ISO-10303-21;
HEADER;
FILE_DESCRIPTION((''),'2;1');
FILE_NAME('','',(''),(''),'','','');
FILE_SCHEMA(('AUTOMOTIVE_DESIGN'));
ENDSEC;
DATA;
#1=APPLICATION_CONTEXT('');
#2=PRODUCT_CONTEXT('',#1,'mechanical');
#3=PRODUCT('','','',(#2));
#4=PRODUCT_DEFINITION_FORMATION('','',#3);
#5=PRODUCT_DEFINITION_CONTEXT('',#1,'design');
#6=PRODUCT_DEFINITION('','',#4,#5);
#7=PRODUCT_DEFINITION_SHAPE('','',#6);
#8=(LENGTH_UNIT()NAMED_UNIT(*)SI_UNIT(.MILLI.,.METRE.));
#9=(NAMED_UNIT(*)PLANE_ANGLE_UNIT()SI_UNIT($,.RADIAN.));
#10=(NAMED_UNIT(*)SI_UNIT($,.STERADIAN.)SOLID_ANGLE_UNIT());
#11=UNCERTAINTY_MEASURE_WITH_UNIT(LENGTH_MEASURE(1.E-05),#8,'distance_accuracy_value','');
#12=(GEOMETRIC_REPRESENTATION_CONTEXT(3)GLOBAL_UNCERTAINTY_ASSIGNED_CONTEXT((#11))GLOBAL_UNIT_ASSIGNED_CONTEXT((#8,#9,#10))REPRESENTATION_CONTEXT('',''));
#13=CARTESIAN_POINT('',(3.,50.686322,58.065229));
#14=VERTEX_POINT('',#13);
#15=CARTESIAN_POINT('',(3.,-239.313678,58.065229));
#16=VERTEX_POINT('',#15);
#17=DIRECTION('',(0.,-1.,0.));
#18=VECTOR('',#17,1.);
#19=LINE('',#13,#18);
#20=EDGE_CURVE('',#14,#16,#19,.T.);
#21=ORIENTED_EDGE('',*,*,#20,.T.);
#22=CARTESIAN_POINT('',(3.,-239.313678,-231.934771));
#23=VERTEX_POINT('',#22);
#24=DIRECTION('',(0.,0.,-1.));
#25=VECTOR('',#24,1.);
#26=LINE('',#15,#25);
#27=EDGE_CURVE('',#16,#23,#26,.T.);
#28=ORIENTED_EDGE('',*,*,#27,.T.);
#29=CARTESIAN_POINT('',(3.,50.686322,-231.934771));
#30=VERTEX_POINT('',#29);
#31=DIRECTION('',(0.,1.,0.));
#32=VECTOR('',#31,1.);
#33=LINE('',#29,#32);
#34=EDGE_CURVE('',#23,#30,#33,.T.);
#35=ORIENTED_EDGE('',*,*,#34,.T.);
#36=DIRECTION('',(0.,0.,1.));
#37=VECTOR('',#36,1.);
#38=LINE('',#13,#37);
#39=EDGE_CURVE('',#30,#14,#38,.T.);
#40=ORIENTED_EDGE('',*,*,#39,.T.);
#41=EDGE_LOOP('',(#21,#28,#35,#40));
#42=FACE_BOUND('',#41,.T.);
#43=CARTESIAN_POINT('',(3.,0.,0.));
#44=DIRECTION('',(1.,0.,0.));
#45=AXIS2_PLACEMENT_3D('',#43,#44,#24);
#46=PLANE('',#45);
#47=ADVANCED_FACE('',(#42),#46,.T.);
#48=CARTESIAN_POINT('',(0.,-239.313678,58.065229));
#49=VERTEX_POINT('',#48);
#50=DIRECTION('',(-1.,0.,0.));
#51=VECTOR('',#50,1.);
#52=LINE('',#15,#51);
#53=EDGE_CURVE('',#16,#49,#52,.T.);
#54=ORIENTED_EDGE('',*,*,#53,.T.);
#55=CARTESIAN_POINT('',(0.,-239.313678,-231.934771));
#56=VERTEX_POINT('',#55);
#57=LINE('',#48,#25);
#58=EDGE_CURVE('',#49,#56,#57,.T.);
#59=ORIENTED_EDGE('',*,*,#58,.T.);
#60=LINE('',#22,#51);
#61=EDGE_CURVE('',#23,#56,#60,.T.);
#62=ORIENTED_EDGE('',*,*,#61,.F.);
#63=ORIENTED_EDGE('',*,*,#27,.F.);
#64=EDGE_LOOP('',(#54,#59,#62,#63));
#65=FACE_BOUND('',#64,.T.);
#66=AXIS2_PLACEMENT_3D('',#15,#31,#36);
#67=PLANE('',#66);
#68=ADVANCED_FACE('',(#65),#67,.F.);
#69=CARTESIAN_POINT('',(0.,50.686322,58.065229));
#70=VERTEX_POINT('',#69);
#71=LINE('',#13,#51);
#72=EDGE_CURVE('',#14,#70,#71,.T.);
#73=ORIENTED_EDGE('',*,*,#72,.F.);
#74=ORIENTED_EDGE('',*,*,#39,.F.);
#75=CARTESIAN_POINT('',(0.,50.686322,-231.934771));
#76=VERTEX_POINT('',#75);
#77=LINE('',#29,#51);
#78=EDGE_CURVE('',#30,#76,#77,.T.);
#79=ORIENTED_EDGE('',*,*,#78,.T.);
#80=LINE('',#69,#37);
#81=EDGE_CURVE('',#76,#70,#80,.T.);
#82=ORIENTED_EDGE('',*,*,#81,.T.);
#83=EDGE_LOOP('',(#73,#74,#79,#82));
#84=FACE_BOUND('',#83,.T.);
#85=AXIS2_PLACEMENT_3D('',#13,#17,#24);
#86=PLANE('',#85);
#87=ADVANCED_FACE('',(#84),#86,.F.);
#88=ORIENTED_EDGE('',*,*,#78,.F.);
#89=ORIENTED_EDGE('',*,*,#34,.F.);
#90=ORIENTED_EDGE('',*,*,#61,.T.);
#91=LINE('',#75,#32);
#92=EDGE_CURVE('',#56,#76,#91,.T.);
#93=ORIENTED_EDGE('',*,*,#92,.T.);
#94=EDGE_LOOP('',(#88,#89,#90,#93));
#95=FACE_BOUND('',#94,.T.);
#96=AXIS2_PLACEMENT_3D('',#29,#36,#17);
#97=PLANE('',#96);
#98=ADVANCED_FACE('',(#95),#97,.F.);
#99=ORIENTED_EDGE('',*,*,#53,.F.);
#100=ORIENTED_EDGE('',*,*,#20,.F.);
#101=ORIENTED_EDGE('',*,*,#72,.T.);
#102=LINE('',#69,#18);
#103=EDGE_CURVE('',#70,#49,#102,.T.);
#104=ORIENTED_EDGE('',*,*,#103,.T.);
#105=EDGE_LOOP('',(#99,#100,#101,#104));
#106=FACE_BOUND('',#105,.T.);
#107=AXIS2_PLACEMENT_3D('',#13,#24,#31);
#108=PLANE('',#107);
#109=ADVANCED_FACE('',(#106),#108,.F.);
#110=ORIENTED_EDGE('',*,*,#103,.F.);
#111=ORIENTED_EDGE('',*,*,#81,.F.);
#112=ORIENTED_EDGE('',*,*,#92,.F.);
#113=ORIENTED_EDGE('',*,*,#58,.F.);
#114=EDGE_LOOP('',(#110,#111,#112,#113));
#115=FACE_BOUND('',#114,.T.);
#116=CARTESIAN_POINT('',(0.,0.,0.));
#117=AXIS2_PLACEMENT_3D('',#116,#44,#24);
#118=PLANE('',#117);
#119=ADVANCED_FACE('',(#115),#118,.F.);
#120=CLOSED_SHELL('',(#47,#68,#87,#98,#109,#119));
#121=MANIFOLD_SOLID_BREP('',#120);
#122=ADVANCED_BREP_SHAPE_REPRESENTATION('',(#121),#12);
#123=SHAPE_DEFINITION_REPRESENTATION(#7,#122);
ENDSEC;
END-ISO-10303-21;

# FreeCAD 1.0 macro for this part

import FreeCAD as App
import Part
import Sketcher
Q = App.Units.Quantity

doc = App.newDocument("Part")
body = doc.addObject("PartDesign::Body", "Body")

sketch1 = body.newObject("Sketcher::SketchObject", "Sketch")
sketch1.AttachmentSupport = (doc.getObject("YZ_Plane"), [""])
sketch1.MapMode = "FlatFace"
sketch1.addGeometry([
    Part.LineSegment(App.Vector(51, 58, 0), App.Vector(-239, 58, 0)),
    Part.LineSegment(App.Vector(-239, 58, 0), App.Vector(-239, -232, 0)),
    Part.LineSegment(App.Vector(-239, -232, 0), App.Vector(51, -232, 0)),
    Part.LineSegment(App.Vector(51, -232, 0), App.Vector(51, 58, 0)),
], False)
sketch1.addConstraint([
    Sketcher.Constraint("Coincident", 0, 2, 1, 1),
    Sketcher.Constraint("Coincident", 1, 2, 2, 1),
    Sketcher.Constraint("Coincident", 2, 2, 3, 1),
    Sketcher.Constraint("Coincident", 3, 2, 0, 1),
    Sketcher.Constraint("Horizontal", 0),
    Sketcher.Constraint("Vertical", 1),
    Sketcher.Constraint("Horizontal", 2),
    Sketcher.Constraint("Vertical", 3),
    Sketcher.Constraint("Equal", 2, 1),
    Sketcher.Constraint("DistanceX", 0, 2, 0, 1, Q("290 mm")),
    Sketcher.Constraint("DistanceX", 0, 2, -1, 1, Q("239.313678 mm")),
    Sketcher.Constraint("DistanceY", -1, 1, 0, 2, Q("58.065229 mm")),
])
pad1 = body.newObject("PartDesign::Pad", "Pad")
pad1.Profile = sketch1
pad1.Length = 3

doc.recompute()
